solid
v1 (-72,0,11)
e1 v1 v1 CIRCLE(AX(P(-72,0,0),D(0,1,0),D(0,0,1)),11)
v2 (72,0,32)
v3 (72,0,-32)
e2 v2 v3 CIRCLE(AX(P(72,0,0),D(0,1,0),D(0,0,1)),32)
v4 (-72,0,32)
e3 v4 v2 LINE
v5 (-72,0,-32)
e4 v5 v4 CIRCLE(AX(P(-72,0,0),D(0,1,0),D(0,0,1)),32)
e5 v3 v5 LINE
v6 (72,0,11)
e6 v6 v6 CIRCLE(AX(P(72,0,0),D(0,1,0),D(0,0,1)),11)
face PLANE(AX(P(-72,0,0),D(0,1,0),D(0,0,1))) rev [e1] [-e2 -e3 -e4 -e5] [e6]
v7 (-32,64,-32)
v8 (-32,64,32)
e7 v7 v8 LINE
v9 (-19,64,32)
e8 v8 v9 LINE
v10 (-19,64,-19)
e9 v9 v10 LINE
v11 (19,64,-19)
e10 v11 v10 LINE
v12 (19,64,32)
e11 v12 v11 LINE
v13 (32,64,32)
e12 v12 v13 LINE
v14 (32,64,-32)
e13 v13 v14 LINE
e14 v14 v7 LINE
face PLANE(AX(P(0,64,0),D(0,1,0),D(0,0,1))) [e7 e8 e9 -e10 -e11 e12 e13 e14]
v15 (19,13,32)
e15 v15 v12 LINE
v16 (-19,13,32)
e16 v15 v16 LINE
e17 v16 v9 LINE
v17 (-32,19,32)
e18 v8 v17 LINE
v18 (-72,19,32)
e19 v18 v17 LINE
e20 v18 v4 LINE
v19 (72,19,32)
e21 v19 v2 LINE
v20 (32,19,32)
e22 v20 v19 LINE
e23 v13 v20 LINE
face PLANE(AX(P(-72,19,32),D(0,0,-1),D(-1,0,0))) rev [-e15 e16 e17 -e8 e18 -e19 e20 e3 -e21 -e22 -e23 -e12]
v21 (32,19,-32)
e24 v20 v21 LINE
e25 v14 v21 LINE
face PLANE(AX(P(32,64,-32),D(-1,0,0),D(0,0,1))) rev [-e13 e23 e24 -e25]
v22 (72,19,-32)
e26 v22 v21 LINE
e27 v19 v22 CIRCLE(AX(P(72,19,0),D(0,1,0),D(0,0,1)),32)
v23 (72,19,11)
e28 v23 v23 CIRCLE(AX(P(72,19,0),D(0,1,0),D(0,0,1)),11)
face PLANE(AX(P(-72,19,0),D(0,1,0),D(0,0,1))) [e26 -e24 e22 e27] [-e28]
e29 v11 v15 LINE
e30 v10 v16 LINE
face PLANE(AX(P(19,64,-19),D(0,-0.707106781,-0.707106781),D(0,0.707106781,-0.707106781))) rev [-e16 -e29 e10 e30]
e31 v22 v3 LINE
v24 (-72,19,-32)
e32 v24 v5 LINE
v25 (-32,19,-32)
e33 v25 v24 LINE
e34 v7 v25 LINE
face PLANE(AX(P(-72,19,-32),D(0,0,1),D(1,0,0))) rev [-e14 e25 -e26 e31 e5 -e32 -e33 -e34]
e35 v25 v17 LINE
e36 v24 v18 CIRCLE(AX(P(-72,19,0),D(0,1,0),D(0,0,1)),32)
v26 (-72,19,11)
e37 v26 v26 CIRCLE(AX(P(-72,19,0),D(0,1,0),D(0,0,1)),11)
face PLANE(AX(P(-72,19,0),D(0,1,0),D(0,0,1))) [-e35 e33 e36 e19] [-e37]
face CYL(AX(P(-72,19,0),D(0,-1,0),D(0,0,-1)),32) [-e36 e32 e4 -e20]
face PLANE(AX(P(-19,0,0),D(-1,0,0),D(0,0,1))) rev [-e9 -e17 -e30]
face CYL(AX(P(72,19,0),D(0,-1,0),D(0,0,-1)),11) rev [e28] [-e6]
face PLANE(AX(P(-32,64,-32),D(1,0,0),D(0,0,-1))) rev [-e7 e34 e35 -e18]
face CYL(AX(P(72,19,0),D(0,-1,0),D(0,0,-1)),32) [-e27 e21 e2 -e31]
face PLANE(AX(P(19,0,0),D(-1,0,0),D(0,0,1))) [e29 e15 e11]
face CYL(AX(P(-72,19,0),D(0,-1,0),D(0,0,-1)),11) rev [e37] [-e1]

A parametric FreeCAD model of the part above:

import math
import FreeCAD as App
import Part
import Sketcher


def add_polygon(sketch, points):
    """Adds a closed chain of lines whose ends are joined by coincident constraints."""
    first, n = sketch.GeometryCount, len(points)
    for a, b in zip(points, points[1:] + points[:1]):
        sketch.addGeometry(Part.LineSegment(App.Vector(*a, 0), App.Vector(*b, 0)), False)
    for i in range(n):
        sketch.addConstraint(Sketcher.Constraint("Coincident", first + i, 2, first + (i + 1) % n, 1))

doc = App.newDocument("Part")
body = doc.addObject("PartDesign::Body", "Body")

sketch1 = body.newObject("Sketcher::SketchObject", "Sketch")
sketch1.AttachmentSupport = (doc.getObject("XZ_Plane"), [""])
sketch1.MapMode = "FlatFace"
sketch1.addGeometry([
    Part.LineSegment(App.Vector(72, -32, 0), App.Vector(-72, -32, 0)),
    Part.ArcOfCircle(Part.Circle(App.Vector(-72, 0, 0), App.Vector(0, 0, 1), 32), math.radians(90), math.radians(270)),
    Part.LineSegment(App.Vector(-72, 32, 0), App.Vector(72, 32, 0)),
    Part.ArcOfCircle(Part.Circle(App.Vector(72, 0, 0), App.Vector(0, 0, 1), 32), math.radians(-90), math.radians(90)),
    Part.Circle(App.Vector(72, 0, 0), App.Vector(0, 0, 1), 11),
    Part.Circle(App.Vector(-72, 0, 0), App.Vector(0, 0, 1), 11),
], False)
sketch1.addConstraint([
    Sketcher.Constraint("Tangent", 0, 2, 1, 2),
    Sketcher.Constraint("Tangent", 1, 1, 2, 1),
    Sketcher.Constraint("Tangent", 2, 2, 3, 2),
    Sketcher.Constraint("Tangent", 3, 1, 0, 1),
    Sketcher.Constraint("Horizontal", 0),
    Sketcher.Constraint("Horizontal", 2),
    Sketcher.Constraint("Coincident", 4, 3, 3, 3),
    Sketcher.Constraint("Coincident", 5, 3, 1, 3),
    Sketcher.Constraint("Equal", 4, 5),
    Sketcher.Constraint("Symmetric", 1, 3, 3, 3, -1, 1),
    Sketcher.Constraint("Diameter", 4, 22.0),
    Sketcher.Constraint("Radius", 1, 32.0),
    Sketcher.Constraint("DistanceX", 0, 2, 0, 1, 144.0),
])
pad1 = body.newObject("PartDesign::Pad", "Pad")
pad1.Profile = sketch1
pad1.Length = 19
pad1.Reversed = True

sketch2 = body.newObject("Sketcher::SketchObject", "Sketch001")
sketch2.AttachmentSupport = (doc.getObject("XZ_Plane"), [""])
sketch2.MapMode = "FlatFace"
sketch2.AttachmentOffset = App.Placement(App.Vector(0, 0, -19), App.Rotation())
add_polygon(sketch2, [(-32, -32), (-32, 32), (32, 32), (32, -32)])
sketch2.addConstraint([
    Sketcher.Constraint("Vertical", 0),
    Sketcher.Constraint("Horizontal", 1),
    Sketcher.Constraint("Vertical", 2),
    Sketcher.Constraint("Horizontal", 3),
    Sketcher.Constraint("Symmetric", 0, 2, 2, 2, -1, 1),
    Sketcher.Constraint("Equal", 3, 0),
    Sketcher.Constraint("DistanceX", 1, 1, 1, 2, 64.0),
])
pad2 = body.newObject("PartDesign::Pad", "Pad001")
pad2.Profile = sketch2
pad2.Length = 45
pad2.Reversed = True

sketch3 = body.newObject("Sketcher::SketchObject", "Sketch002")
sketch3.AttachmentSupport = (doc.getObject("YZ_Plane"), [""])
sketch3.MapMode = "FlatFace"
sketch3.AttachmentOffset = App.Placement(App.Vector(0, 0, -19), App.Rotation())
add_polygon(sketch3, [(64, 32), (64, -19), (13, 32)])
sketch3.addConstraint([
    Sketcher.Constraint("Vertical", 0),
    Sketcher.Constraint("Horizontal", 2),
    Sketcher.Constraint("Equal", 2, 0),
    Sketcher.Constraint("DistanceX", 2, 1, 2, 2, 51.0),
    Sketcher.Constraint("DistanceX", -1, 1, 0, 2, 64.0),
    Sketcher.Constraint("DistanceY", 0, 2, -1, 1, 19.0),
])
pocket1 = body.newObject("PartDesign::Pocket", "Pocket")
pocket1.Profile = sketch3
pocket1.Length = 38
pocket1.Reversed = True

doc.recompute()
